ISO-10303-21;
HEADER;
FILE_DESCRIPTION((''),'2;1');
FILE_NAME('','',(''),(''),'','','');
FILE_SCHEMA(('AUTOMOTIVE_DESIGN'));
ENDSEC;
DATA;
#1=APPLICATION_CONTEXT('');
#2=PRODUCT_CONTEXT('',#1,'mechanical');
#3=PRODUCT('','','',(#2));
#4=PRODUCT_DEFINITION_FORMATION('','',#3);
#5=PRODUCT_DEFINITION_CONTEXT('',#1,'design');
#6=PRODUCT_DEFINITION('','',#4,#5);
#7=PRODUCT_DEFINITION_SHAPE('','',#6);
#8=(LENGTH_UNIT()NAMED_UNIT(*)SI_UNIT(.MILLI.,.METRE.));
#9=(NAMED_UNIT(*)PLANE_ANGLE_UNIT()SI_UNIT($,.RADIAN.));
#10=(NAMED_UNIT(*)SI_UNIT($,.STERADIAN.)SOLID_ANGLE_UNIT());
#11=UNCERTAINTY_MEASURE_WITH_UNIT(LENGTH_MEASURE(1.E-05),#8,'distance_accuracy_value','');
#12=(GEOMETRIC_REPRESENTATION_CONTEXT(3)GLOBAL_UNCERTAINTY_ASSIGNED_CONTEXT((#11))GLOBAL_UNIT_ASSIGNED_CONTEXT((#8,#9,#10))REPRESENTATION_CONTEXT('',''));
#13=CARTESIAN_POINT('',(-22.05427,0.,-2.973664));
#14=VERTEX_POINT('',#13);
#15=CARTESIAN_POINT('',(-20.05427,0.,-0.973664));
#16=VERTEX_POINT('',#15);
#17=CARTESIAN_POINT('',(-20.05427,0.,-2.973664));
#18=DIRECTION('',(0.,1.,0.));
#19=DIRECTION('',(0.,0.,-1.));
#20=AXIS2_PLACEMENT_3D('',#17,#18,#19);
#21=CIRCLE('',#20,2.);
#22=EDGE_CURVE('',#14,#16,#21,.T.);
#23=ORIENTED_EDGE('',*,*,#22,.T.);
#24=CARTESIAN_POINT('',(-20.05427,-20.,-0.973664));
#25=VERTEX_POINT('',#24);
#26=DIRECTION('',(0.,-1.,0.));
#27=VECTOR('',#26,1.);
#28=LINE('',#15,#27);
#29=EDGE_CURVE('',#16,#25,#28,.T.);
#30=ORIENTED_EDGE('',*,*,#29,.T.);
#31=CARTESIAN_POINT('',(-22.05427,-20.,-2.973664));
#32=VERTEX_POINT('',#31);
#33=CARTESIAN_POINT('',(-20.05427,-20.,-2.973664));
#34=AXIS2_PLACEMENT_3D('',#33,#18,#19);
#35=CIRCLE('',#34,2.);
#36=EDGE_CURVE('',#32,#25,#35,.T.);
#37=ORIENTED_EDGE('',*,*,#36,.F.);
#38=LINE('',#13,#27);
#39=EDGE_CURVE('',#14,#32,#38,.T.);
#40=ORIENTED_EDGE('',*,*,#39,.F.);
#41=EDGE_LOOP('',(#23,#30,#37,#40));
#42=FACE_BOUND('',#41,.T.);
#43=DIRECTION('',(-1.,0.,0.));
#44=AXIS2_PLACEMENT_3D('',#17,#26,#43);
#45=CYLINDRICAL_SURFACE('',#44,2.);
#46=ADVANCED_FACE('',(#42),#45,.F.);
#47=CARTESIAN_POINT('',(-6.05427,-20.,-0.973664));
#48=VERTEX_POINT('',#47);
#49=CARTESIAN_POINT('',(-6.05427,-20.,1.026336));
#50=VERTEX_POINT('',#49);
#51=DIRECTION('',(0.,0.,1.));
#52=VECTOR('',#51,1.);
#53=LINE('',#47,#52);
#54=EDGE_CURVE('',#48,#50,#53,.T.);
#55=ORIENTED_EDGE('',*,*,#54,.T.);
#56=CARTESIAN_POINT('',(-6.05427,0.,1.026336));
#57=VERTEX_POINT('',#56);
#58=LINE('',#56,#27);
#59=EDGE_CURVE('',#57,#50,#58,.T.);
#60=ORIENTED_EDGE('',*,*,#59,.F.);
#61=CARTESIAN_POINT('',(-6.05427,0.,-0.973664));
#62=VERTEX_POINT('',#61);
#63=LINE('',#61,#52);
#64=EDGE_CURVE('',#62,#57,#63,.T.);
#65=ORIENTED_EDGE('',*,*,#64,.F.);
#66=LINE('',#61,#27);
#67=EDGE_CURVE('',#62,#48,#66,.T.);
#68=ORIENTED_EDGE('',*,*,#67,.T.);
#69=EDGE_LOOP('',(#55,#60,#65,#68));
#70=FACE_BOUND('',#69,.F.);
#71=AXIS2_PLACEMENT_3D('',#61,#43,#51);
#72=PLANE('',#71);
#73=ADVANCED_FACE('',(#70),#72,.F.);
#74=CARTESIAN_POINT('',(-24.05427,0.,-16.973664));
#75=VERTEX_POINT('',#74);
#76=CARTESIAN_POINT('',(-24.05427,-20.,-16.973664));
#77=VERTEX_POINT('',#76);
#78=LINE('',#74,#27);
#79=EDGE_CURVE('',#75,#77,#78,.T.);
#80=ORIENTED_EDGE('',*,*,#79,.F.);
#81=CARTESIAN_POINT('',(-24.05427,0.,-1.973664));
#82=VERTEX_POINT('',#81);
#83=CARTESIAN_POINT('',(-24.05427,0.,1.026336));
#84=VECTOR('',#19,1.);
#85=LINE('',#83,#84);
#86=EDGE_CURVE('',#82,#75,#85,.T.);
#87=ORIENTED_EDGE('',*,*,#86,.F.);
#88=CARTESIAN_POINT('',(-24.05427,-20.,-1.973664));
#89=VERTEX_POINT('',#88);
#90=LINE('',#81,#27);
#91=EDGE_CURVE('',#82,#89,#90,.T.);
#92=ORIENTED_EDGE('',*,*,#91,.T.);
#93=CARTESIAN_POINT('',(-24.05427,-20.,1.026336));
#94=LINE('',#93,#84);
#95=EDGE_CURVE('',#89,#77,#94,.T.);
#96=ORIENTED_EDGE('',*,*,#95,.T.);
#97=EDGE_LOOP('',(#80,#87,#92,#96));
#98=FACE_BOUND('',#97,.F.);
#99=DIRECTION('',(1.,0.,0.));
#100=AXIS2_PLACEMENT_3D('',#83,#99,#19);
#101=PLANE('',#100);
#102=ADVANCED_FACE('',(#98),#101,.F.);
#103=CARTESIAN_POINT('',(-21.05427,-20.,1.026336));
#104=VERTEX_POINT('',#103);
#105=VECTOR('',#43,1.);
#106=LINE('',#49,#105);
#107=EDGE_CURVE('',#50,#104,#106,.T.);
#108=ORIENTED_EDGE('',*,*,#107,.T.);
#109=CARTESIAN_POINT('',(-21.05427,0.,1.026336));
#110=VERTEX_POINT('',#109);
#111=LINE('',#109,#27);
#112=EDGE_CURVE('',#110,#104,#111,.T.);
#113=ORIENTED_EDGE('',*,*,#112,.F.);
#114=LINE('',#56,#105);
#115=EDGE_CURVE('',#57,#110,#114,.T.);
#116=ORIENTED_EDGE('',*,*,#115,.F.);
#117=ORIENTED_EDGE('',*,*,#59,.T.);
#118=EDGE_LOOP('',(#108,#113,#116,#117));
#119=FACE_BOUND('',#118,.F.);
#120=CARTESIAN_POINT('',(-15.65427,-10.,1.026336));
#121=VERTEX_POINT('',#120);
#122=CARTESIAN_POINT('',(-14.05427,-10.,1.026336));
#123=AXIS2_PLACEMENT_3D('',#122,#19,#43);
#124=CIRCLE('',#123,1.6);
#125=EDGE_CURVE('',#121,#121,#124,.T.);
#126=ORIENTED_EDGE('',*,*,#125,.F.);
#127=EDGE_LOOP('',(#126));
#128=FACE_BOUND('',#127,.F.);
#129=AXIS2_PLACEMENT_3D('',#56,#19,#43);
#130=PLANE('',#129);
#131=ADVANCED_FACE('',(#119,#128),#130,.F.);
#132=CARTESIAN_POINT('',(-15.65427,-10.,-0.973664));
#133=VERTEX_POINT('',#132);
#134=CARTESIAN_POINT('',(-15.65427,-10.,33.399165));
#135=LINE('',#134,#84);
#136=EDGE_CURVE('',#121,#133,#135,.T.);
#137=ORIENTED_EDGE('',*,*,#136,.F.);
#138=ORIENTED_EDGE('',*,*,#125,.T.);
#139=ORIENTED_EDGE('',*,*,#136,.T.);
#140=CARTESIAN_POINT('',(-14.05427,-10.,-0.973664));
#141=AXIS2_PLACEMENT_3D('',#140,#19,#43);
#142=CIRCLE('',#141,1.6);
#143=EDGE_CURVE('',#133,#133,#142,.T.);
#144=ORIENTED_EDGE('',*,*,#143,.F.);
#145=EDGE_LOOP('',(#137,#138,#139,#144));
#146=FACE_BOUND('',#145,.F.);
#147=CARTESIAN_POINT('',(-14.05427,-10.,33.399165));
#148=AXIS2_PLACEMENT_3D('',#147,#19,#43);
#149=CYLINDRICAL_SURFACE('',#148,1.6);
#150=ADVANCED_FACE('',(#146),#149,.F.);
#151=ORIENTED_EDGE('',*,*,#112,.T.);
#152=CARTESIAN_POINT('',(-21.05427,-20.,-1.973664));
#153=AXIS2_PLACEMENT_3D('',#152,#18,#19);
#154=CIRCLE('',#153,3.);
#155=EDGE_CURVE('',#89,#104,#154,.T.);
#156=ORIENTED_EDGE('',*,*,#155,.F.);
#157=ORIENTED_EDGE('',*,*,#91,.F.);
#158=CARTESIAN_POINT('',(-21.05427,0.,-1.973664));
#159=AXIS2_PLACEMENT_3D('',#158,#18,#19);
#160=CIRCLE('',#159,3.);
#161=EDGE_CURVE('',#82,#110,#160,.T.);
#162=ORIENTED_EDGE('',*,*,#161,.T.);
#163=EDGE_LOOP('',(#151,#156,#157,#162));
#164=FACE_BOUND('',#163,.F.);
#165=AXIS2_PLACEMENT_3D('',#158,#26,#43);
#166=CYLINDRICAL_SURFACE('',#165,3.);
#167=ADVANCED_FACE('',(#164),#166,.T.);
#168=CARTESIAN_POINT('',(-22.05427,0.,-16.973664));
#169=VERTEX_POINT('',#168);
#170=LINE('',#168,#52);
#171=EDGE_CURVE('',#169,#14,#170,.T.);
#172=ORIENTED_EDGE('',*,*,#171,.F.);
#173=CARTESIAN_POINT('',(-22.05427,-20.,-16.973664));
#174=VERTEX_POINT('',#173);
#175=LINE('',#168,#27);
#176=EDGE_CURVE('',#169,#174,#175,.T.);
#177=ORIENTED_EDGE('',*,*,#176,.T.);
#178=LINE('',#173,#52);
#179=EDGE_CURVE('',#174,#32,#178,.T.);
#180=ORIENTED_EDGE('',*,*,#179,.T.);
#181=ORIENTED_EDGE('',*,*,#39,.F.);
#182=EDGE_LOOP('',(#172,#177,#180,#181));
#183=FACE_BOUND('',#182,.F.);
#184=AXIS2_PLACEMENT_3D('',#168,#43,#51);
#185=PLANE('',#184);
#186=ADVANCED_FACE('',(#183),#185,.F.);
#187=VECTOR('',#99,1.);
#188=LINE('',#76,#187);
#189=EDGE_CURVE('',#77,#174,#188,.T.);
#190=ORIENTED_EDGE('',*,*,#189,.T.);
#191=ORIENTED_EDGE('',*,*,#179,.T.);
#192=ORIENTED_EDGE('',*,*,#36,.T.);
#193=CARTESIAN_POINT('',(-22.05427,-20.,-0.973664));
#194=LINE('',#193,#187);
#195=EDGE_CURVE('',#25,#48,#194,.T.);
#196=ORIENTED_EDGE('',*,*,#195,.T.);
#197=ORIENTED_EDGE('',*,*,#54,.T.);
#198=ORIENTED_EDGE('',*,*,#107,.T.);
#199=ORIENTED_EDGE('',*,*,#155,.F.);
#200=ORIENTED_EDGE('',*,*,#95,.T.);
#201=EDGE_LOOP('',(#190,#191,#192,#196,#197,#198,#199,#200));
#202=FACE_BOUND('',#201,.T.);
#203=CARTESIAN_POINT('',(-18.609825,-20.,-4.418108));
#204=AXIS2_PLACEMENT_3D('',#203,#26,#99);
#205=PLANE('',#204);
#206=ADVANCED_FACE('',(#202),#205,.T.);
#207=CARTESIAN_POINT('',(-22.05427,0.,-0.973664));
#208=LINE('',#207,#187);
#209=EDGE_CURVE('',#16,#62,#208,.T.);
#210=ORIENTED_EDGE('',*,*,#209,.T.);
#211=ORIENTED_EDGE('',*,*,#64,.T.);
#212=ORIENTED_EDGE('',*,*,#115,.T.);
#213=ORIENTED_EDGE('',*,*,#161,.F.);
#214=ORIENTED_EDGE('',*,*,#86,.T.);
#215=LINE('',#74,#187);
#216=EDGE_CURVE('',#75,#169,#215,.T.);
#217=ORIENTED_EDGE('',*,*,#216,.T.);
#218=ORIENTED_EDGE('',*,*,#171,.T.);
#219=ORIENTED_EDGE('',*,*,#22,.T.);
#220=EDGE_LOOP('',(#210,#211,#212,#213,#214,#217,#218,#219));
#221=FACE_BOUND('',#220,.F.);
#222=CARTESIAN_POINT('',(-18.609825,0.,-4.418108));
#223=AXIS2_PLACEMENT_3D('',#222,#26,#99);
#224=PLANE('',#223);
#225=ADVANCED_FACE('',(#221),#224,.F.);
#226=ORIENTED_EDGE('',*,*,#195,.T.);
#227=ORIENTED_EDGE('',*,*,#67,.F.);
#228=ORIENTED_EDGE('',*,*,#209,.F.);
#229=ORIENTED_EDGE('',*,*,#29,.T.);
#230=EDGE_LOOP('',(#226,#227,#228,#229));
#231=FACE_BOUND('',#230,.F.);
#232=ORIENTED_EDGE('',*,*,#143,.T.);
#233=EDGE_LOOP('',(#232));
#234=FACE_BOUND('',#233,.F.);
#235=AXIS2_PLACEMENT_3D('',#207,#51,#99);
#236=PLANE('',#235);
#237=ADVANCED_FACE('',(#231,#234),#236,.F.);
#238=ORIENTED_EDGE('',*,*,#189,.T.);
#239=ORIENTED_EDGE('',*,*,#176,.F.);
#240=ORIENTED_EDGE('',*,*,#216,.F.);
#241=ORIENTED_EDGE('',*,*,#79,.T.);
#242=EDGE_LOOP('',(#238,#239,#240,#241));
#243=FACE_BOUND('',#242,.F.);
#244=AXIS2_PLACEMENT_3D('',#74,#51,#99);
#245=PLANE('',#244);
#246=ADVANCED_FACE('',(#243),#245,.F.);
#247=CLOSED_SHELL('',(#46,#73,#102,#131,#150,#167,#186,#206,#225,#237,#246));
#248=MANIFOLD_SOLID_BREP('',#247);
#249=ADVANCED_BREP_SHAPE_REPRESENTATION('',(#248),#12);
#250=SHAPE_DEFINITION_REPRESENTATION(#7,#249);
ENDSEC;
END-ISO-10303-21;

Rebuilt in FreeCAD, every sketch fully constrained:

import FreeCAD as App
import Part
import Sketcher
from FreeCAD import Vector


def edges_at(feature, points):
    """Names of the edges that pass closest to the given points."""
    edges = feature.Shape.Edges
    near = lambda p: min(range(len(edges)), key=lambda i: edges[i].distToShape(Part.Vertex(*p))[0])
    return sorted({f"Edge{near(p) + 1}" for p in points})


def add_polygon(sketch, points):
    """Adds a closed chain of lines whose ends are joined by coincident constraints."""
    first, n = sketch.GeometryCount, len(points)
    for a, b in zip(points, points[1:] + points[:1]):
        sketch.addGeometry(Part.LineSegment(App.Vector(*a, 0), App.Vector(*b, 0)), False)
    for i in range(n):
        sketch.addConstraint(Sketcher.Constraint("Coincident", first + i, 2, first + (i + 1) % n, 1))

doc = App.newDocument("Part")
body = doc.addObject("PartDesign::Body", "Body")

sketch1 = body.newObject("Sketcher::SketchObject", "Sketch")
sketch1.AttachmentSupport = (doc.getObject("XZ_Plane"), [""])
sketch1.MapMode = "FlatFace"
add_polygon(sketch1, [(-24.1, 1), (-24.1, -17), (-22.1, -17), (-22.1, -1), (-6.1, -1), (-6.1, 1)])
sketch1.addConstraint([
    Sketcher.Constraint("Vertical", 0),
    Sketcher.Constraint("Horizontal", 1),
    Sketcher.Constraint("Vertical", 2),
    Sketcher.Constraint("Horizontal", 3),
    Sketcher.Constraint("Vertical", 4),
    Sketcher.Constraint("Horizontal", 5),
    Sketcher.Constraint("Equal", 5, 0),
    Sketcher.Constraint("Equal", 3, 2),
    Sketcher.Constraint("DistanceX", 1, 1, 1, 2, 2.0),
    Sketcher.Constraint("DistanceX", 3, 1, 3, 2, 16.0),
    Sketcher.Constraint("DistanceX", 0, 2, -1, 1, 24.05427),
    Sketcher.Constraint("DistanceY", 0, 2, -1, 1, 16.973664),
])
pad1 = body.newObject("PartDesign::Pad", "Pad")
pad1.Profile = sketch1
pad1.Length = 20

sketch2 = body.newObject("Sketcher::SketchObject", "Sketch001")
sketch2.AttachmentSupport = (doc.getObject("XY_Plane"), [""])
sketch2.MapMode = "FlatFace"
sketch2.AttachmentOffset = App.Placement(Vector(0, 0, 1.026336), App.Rotation())
sketch2.addGeometry(Part.Circle(Vector(-14.1, -10, 0), Vector(0, 0, 1), 1.6), False)
sketch2.addConstraint([
    Sketcher.Constraint("Diameter", 0, 3.2),
    Sketcher.Constraint("DistanceY", 0, 3, -1, 1, 10.0),
    Sketcher.Constraint("DistanceX", 0, 3, -1, 1, 14.05427),
])
doc.recompute()
hole = body.newObject("PartDesign::Hole", "Hole")
hole.Profile = sketch2
hole.ThreadType = "None"
hole.Diameter = 3.2
hole.DepthType = "ThroughAll"
doc.recompute()

fillet = body.newObject("PartDesign::Fillet", "Fillet")
fillet.Base = (hole, edges_at(hole, [(-24.054, -10, 1.026)]))
fillet.Radius = 3
doc.recompute()

fillet2 = body.newObject("PartDesign::Fillet", "Fillet001")
fillet2.Base = (fillet, edges_at(fillet, [(-22.054, -10, -0.974)]))
fillet2.Radius = 2

doc.recompute()
